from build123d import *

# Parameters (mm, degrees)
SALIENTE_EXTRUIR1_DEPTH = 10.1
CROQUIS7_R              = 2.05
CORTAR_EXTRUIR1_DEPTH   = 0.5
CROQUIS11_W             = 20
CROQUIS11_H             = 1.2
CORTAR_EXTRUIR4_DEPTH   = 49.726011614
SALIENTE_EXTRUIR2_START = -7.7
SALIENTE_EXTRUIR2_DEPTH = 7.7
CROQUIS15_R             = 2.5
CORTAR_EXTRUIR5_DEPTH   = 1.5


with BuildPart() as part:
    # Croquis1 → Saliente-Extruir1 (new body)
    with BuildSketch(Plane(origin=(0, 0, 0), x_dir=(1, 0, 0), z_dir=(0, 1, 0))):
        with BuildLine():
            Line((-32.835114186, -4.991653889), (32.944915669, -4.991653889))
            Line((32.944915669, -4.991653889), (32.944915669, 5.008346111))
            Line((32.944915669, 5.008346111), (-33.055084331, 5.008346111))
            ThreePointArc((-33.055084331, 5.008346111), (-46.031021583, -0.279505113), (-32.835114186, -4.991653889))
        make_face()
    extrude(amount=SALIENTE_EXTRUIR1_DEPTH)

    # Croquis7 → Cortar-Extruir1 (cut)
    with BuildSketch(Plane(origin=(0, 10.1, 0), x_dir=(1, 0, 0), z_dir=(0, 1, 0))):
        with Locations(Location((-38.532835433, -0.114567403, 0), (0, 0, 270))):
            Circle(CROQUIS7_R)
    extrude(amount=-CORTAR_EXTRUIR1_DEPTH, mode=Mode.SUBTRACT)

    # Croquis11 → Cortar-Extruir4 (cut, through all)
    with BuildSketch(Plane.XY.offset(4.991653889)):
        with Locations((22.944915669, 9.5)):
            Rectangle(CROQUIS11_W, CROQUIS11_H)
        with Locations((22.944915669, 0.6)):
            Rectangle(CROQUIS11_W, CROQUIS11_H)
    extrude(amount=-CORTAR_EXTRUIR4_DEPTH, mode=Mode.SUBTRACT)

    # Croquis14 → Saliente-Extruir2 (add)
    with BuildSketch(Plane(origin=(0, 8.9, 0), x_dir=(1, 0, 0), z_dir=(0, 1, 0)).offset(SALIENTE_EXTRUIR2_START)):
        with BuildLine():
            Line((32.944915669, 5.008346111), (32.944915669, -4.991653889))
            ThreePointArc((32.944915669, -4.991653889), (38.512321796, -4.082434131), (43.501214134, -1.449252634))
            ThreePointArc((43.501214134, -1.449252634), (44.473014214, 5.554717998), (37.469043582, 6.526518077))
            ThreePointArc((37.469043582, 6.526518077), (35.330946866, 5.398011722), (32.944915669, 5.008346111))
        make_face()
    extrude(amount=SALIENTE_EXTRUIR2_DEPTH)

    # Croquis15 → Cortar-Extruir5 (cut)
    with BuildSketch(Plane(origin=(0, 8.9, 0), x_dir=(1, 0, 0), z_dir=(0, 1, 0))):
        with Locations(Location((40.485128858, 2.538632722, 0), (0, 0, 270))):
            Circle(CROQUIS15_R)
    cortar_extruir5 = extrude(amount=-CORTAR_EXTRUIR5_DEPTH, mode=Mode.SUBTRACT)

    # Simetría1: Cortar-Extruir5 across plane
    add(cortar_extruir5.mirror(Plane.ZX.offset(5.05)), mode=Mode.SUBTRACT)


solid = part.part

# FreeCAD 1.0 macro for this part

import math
import FreeCAD as App
import Part
import Sketcher
Q = App.Units.Quantity


def add_polygon(sketch, points):
    """Adds a closed chain of lines whose ends are joined by coincident constraints."""
    first, n = sketch.GeometryCount, len(points)
    for a, b in zip(points, points[1:] + points[:1]):
        sketch.addGeometry(Part.LineSegment(App.Vector(*a, 0), App.Vector(*b, 0)), False)
    for i in range(n):
        sketch.addConstraint(Sketcher.Constraint("Coincident", first + i, 2, first + (i + 1) % n, 1))

doc = App.newDocument("Part")
params = doc.addObject("Spreadsheet::Sheet", "Params")
for row, (alias, value) in enumerate([
    ("sketch1_radius", "7.5 mm"),
    ("sketch1_width", "66 mm"),
    ("sketch1_height", "10 mm"),
    ("pad1_length", "10.1 mm"),
    ("sketch2_diameter", "4.1 mm"),
    ("pocket1_length", "0.5 mm"),
    ("sketch3_width", "20 mm"),
    ("sketch3_height", "1.2 mm"),
    ("sketch4_radius", "5 mm"),
    ("sketch4_radius2", "17.5 mm"),
    ("pad2_length", "7.7 mm"),
    ("sketch5_diameter", "5 mm"),
    ("pocket3_length", "1.5 mm"),
], start=1):
    params.set(f"A{row}", alias)
    params.set(f"B{row}", "=" + value)
    params.setAlias(f"B{row}", alias)

body = doc.addObject("PartDesign::Body", "Body")

# Sketch on XZ plane
sketch1 = body.newObject("Sketcher::SketchObject", "Sketch")
sketch1.AttachmentSupport = (doc.getObject("XZ_Plane"), [""])
sketch1.MapMode = "FlatFace"
sketch1.addGeometry([
    Part.LineSegment(App.Vector(-33, 5, 0), App.Vector(33, 5, 0)),
    Part.LineSegment(App.Vector(33, 5, 0), App.Vector(33, -5, 0)),
    Part.LineSegment(App.Vector(33, -5, 0), App.Vector(-33, -5, 0)),
    Part.ArcOfCircle(Part.Circle(App.Vector(-39, 0, 0), App.Vector(0, 0, 1), 8), math.radians(41), math.radians(317)),
], False)
sketch1.addConstraint([
    Sketcher.Constraint("Coincident", 0, 2, 1, 1),
    Sketcher.Constraint("Coincident", 1, 2, 2, 1),
    Sketcher.Constraint("Coincident", 2, 2, 3, 2),
    Sketcher.Constraint("Coincident", 3, 1, 0, 1),
    Sketcher.Constraint("Horizontal", 0),
    Sketcher.Constraint("Vertical", 1),
    Sketcher.Constraint("Horizontal", 2),
    Sketcher.Constraint("Radius", 3, Q("7.5 mm")),
    Sketcher.Constraint("DistanceX", 2, 2, 2, 1, Q("66 mm")),
    Sketcher.Constraint("DistanceY", 1, 2, 1, 1, Q("10 mm")),
    Sketcher.Constraint("DistanceX", 0, 1, 0, 2, Q("65.78003 mm")),
    Sketcher.Constraint("DistanceX", 3, 3, -1, 1, Q("38.532835 mm")),
    Sketcher.Constraint("DistanceY", -1, 1, 3, 3, Q("0.114567 mm")),
])
sketch1.setExpression("Constraints[7]", "Params.sketch1_radius")
sketch1.setExpression("Constraints[8]", "Params.sketch1_width")
sketch1.setExpression("Constraints[9]", "Params.sketch1_height")
pad1 = body.newObject("PartDesign::Pad", "Pad")
pad1.Profile = sketch1
pad1.setExpression("Length", "Params.pad1_length")
pad1.Reversed = True

# Sketch on XZ plane
sketch2 = body.newObject("Sketcher::SketchObject", "Sketch001")
sketch2.AttachmentSupport = (doc.getObject("XZ_Plane"), [""])
sketch2.MapMode = "FlatFace"
sketch2.AttachmentOffset = App.Placement(App.Vector(0, 0, -10.1), App.Rotation())
sketch2.addGeometry(Part.Circle(App.Vector(-38.5, 0.1, 0), App.Vector(0, 0, 1), 2), False)
sketch2.addConstraint([
    Sketcher.Constraint("Diameter", 0, Q("4.1 mm")),
    Sketcher.Constraint("DistanceX", 0, 3, -1, 1, Q("38.532835 mm")),
    Sketcher.Constraint("DistanceY", -1, 1, 0, 3, Q("0.114567 mm")),
])
sketch2.setExpression("Constraints[0]", "Params.sketch2_diameter")
pocket1 = body.newObject("PartDesign::Pocket", "Pocket")
pocket1.Profile = sketch2
pocket1.setExpression("Length", "Params.pocket1_length")
pocket1.Reversed = True

# Sketch on XY plane
sketch3 = body.newObject("Sketcher::SketchObject", "Sketch002")
sketch3.AttachmentSupport = (doc.getObject("XY_Plane"), [""])
sketch3.MapMode = "FlatFace"
sketch3.AttachmentOffset = App.Placement(App.Vector(0, 0, 4.991654), App.Rotation())
add_polygon(sketch3, [(12.9, 10.1), (12.9, 8.9), (32.9, 8.9), (32.9, 10.1)])  # lines 0-3
add_polygon(sketch3, [(12.9, 1.2), (12.9, 0), (32.9, 0), (32.9, 1.2)])  # lines 4-7
sketch3.addConstraint([
    Sketcher.Constraint("Vertical", 0),
    Sketcher.Constraint("Horizontal", 1),
    Sketcher.Constraint("Vertical", 2),
    Sketcher.Constraint("Horizontal", 3),
    Sketcher.Constraint("Vertical", 4),
    Sketcher.Constraint("Horizontal", 5),
    Sketcher.Constraint("Vertical", 6),
    Sketcher.Constraint("Horizontal", 7),
    Sketcher.Constraint("PointOnObject", 4, 2, -1),
    Sketcher.Constraint("Vertical", 3, 2, 4, 2),
    Sketcher.Constraint("Vertical", 2, 2, 5, 2),
    Sketcher.Constraint("Equal", 2, 4),
    Sketcher.Constraint("DistanceX", 1, 1, 1, 2, Q("20 mm")),
    Sketcher.Constraint("DistanceY", 0, 2, 0, 1, Q("1.2 mm")),
    Sketcher.Constraint("DistanceY", -1, 1, 0, 2, Q("8.9 mm")),
    Sketcher.Constraint("DistanceX", -1, 1, 0, 2, Q("12.944916 mm")),
])
sketch3.setExpression("Constraints[20]", "Params.sketch3_width")
sketch3.setExpression("Constraints[21]", "Params.sketch3_height")
pocket2 = body.newObject("PartDesign::Pocket", "Pocket001")
pocket2.Profile = sketch3
pocket2.Type = "ThroughAll"

# Sketch on XZ plane
sketch4 = body.newObject("Sketcher::SketchObject", "Sketch003")
sketch4.AttachmentSupport = (doc.getObject("XZ_Plane"), [""])
sketch4.MapMode = "FlatFace"
sketch4.AttachmentOffset = App.Placement(App.Vector(0, 0, -1.2), App.Rotation())
sketch4.addGeometry([
    Part.LineSegment(App.Vector(32.9, -5, 0), App.Vector(32.9, 5, 0)),
    Part.ArcOfCircle(Part.Circle(App.Vector(32.9, -12.5, 0), App.Vector(0, 0, 1), 17.5), math.radians(53), math.radians(90)),
    Part.ArcOfCircle(Part.Circle(App.Vector(40.5, -2.5, 0), App.Vector(0, 0, 1), 5), math.radians(-127), math.radians(53)),
    Part.ArcOfCircle(Part.Circle(App.Vector(32.9, -12.5, 0), App.Vector(0, 0, 1), 7.5), math.radians(53), math.radians(90)),
], False)
sketch4.addConstraint([
    Sketcher.Constraint("Coincident", 0, 2, 1, 2),
    Sketcher.Constraint("Tangent", 1, 1, 2, 2),
    Sketcher.Constraint("Tangent", 2, 1, 3, 1),
    Sketcher.Constraint("Coincident", 3, 2, 0, 1),
    Sketcher.Constraint("Vertical", 0),
    Sketcher.Constraint("Coincident", 3, 3, 1, 3),
    Sketcher.Constraint("Vertical", 3, 3, 0, 2),
    Sketcher.Constraint("Radius", 2, Q("5 mm")),
    Sketcher.Constraint("Radius", 1, Q("17.5 mm")),
    Sketcher.Constraint("DistanceX", 0, 2, 1, 1, Q("10.556298 mm")),
    Sketcher.Constraint("DistanceX", -1, 1, 2, 3, Q("40.485129 mm")),
    Sketcher.Constraint("DistanceY", 2, 1, -1, 1, Q("6.526518 mm")),
])
sketch4.setExpression("Constraints[7]", "Params.sketch4_radius")
sketch4.setExpression("Constraints[8]", "Params.sketch4_radius2")
pad2 = body.newObject("PartDesign::Pad", "Pad001")
pad2.Profile = sketch4
pad2.setExpression("Length", "Params.pad2_length")
pad2.Reversed = True

# Sketch on XZ plane
sketch5 = body.newObject("Sketcher::SketchObject", "Sketch004")
sketch5.AttachmentSupport = (doc.getObject("XZ_Plane"), [""])
sketch5.MapMode = "FlatFace"
sketch5.AttachmentOffset = App.Placement(App.Vector(0, 0, -8.9), App.Rotation())
sketch5.addGeometry(Part.Circle(App.Vector(40.5, -2.5, 0), App.Vector(0, 0, 1), 2.5), False)
sketch5.addConstraint([
    Sketcher.Constraint("Diameter", 0, Q("5 mm")),
    Sketcher.Constraint("DistanceX", -1, 1, 0, 3, Q("40.485129 mm")),
    Sketcher.Constraint("DistanceY", 0, 3, -1, 1, Q("2.538633 mm")),
])
sketch5.setExpression("Constraints[0]", "Params.sketch5_diameter")
pocket3 = body.newObject("PartDesign::Pocket", "Pocket002")
pocket3.Profile = sketch5
pocket3.setExpression("Length", "Params.pocket3_length")
pocket3.Reversed = True
doc.recompute()

datumplane = body.newObject("PartDesign::Plane", "DatumPlane")
datumplane.AttachmentSupport = (doc.getObject("XZ_Plane"), [""])
datumplane.MapMode = "FlatFace"
datumplane.AttachmentOffset = App.Placement(App.Vector(0, 0, -5.05), App.Rotation())
mirrored = body.newObject("PartDesign::Mirrored", "Mirrored")
mirrored.Originals = [pocket3]
mirrored.MirrorPlane = (datumplane, [""])
body.Tip = mirrored

doc.recompute()
